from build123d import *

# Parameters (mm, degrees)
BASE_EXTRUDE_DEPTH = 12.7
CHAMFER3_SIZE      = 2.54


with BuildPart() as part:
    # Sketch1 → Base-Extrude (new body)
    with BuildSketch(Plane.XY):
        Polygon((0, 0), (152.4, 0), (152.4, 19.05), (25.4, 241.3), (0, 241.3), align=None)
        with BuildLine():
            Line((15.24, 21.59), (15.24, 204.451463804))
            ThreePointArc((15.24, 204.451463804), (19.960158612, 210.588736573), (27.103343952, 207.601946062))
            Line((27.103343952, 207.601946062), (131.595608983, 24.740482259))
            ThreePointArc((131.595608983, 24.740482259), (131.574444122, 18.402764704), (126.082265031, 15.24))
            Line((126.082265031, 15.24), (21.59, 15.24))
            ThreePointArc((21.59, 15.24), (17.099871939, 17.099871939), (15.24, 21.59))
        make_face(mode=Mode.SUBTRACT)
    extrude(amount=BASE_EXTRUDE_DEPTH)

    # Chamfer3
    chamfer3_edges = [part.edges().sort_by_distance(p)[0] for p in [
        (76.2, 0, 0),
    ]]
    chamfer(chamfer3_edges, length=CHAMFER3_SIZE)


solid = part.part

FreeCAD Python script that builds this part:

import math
import FreeCAD as App
import Part
import Sketcher

V = App.Vector
Q = App.Units.Quantity


def edges_at(feature, points):
    """Names of the edges that pass closest to the given points."""
    edges = feature.Shape.Edges
    near = lambda p: min(range(len(edges)), key=lambda i: edges[i].distToShape(Part.Vertex(*p))[0])
    return sorted({f"Edge{near(p) + 1}" for p in points})

doc = App.newDocument("Part")
body = doc.addObject("PartDesign::Body", "Body")

# Sketch on XY plane
sketch1 = body.newObject("Sketcher::SketchObject", "Sketch")
sketch1.AttachmentSupport = (doc.getObject("XY_Plane"), [""])
sketch1.MapMode = "FlatFace"
sketch1.addGeometry([
    Part.LineSegment(V(0, 0, 0), V(152, 0, 0)),  # 0
    Part.LineSegment(V(152, 0, 0), V(152, 19, 0)),  # 1
    Part.LineSegment(V(152, 19, 0), V(25, 241, 0)),  # 2
    Part.LineSegment(V(25, 241, 0), V(0, 241, 0)),  # 3
    Part.LineSegment(V(0, 241, 0), V(0, 0, 0)),  # 4
    Part.ArcOfCircle(Part.Circle(V(22, 22, 0), V(0, 0, 1), 6), math.radians(180), math.radians(270)),  # 5
    Part.LineSegment(V(15, 22, 0), V(15, 204, 0)),  # 6
    Part.ArcOfCircle(Part.Circle(V(22, 204, 0), V(0, 0, 1), 6), math.radians(30), math.radians(180)),  # 7
    Part.LineSegment(V(27, 208, 0), V(132, 25, 0)),  # 8
    Part.ArcOfCircle(Part.Circle(V(126, 22, 0), V(0, 0, 1), 6), math.radians(-90), math.radians(30)),  # 9
    Part.LineSegment(V(126, 15, 0), V(22, 15, 0)),  # 10
], False)
sketch1.addConstraint([
    Sketcher.Constraint("Coincident", 0, 2, 1, 1),
    Sketcher.Constraint("Coincident", 1, 2, 2, 1),
    Sketcher.Constraint("Coincident", 2, 2, 3, 1),
    Sketcher.Constraint("Coincident", 3, 2, 4, 1),
    Sketcher.Constraint("Coincident", 4, 2, 0, 1),
    Sketcher.Constraint("Tangent", 5, 1, 6, 1),
    Sketcher.Constraint("Tangent", 6, 2, 7, 2),
    Sketcher.Constraint("Tangent", 7, 1, 8, 1),
    Sketcher.Constraint("Tangent", 8, 2, 9, 2),
    Sketcher.Constraint("Tangent", 9, 1, 10, 1),
    Sketcher.Constraint("Tangent", 10, 2, 5, 2),
    Sketcher.Constraint("Horizontal", 0),
    Sketcher.Constraint("Vertical", 1),
    Sketcher.Constraint("Horizontal", 3),
    Sketcher.Constraint("Vertical", 4),
    Sketcher.Constraint("Vertical", 6),
    Sketcher.Constraint("Horizontal", 10),
    Sketcher.Constraint("Coincident", 4, 2, -1, 1),
    Sketcher.Constraint("Equal", 5, 7),
    Sketcher.Constraint("Equal", 7, 9),
    Sketcher.Constraint("Parallel", 2, 8),
    Sketcher.Constraint("DistanceX", 0, 1, 0, 2, Q("6 in")),
    Sketcher.Constraint("DistanceX", 3, 2, 3, 1, Q("1 in")),
    Sketcher.Constraint("Radius", 5, Q("0.25 in")),
    Sketcher.Constraint("DistanceY", 4, 2, 4, 1, Q("9.5 in")),
    Sketcher.Constraint("DistanceY", 1, 1, 1, 2, Q("0.75 in")),
    Sketcher.Constraint("DistanceX", -1, 1, 5, 1, Q("0.6 in")),
    Sketcher.Constraint("DistanceY", -1, 1, 9, 1, Q("0.6 in")),
    Sketcher.Constraint("DistanceX", 10, 2, 10, 1, 104.492265),
])
pad1 = body.newObject("PartDesign::Pad", "Pad")
pad1.Profile = sketch1
pad1.Length = Q("0.5 in")
doc.recompute()

chamfer = body.newObject("PartDesign::Chamfer", "Chamfer")
chamfer.Base = (pad1, edges_at(pad1, [(76.2, 0, 0)]))
chamfer.Size = Q("0.1 in")

doc.recompute()
